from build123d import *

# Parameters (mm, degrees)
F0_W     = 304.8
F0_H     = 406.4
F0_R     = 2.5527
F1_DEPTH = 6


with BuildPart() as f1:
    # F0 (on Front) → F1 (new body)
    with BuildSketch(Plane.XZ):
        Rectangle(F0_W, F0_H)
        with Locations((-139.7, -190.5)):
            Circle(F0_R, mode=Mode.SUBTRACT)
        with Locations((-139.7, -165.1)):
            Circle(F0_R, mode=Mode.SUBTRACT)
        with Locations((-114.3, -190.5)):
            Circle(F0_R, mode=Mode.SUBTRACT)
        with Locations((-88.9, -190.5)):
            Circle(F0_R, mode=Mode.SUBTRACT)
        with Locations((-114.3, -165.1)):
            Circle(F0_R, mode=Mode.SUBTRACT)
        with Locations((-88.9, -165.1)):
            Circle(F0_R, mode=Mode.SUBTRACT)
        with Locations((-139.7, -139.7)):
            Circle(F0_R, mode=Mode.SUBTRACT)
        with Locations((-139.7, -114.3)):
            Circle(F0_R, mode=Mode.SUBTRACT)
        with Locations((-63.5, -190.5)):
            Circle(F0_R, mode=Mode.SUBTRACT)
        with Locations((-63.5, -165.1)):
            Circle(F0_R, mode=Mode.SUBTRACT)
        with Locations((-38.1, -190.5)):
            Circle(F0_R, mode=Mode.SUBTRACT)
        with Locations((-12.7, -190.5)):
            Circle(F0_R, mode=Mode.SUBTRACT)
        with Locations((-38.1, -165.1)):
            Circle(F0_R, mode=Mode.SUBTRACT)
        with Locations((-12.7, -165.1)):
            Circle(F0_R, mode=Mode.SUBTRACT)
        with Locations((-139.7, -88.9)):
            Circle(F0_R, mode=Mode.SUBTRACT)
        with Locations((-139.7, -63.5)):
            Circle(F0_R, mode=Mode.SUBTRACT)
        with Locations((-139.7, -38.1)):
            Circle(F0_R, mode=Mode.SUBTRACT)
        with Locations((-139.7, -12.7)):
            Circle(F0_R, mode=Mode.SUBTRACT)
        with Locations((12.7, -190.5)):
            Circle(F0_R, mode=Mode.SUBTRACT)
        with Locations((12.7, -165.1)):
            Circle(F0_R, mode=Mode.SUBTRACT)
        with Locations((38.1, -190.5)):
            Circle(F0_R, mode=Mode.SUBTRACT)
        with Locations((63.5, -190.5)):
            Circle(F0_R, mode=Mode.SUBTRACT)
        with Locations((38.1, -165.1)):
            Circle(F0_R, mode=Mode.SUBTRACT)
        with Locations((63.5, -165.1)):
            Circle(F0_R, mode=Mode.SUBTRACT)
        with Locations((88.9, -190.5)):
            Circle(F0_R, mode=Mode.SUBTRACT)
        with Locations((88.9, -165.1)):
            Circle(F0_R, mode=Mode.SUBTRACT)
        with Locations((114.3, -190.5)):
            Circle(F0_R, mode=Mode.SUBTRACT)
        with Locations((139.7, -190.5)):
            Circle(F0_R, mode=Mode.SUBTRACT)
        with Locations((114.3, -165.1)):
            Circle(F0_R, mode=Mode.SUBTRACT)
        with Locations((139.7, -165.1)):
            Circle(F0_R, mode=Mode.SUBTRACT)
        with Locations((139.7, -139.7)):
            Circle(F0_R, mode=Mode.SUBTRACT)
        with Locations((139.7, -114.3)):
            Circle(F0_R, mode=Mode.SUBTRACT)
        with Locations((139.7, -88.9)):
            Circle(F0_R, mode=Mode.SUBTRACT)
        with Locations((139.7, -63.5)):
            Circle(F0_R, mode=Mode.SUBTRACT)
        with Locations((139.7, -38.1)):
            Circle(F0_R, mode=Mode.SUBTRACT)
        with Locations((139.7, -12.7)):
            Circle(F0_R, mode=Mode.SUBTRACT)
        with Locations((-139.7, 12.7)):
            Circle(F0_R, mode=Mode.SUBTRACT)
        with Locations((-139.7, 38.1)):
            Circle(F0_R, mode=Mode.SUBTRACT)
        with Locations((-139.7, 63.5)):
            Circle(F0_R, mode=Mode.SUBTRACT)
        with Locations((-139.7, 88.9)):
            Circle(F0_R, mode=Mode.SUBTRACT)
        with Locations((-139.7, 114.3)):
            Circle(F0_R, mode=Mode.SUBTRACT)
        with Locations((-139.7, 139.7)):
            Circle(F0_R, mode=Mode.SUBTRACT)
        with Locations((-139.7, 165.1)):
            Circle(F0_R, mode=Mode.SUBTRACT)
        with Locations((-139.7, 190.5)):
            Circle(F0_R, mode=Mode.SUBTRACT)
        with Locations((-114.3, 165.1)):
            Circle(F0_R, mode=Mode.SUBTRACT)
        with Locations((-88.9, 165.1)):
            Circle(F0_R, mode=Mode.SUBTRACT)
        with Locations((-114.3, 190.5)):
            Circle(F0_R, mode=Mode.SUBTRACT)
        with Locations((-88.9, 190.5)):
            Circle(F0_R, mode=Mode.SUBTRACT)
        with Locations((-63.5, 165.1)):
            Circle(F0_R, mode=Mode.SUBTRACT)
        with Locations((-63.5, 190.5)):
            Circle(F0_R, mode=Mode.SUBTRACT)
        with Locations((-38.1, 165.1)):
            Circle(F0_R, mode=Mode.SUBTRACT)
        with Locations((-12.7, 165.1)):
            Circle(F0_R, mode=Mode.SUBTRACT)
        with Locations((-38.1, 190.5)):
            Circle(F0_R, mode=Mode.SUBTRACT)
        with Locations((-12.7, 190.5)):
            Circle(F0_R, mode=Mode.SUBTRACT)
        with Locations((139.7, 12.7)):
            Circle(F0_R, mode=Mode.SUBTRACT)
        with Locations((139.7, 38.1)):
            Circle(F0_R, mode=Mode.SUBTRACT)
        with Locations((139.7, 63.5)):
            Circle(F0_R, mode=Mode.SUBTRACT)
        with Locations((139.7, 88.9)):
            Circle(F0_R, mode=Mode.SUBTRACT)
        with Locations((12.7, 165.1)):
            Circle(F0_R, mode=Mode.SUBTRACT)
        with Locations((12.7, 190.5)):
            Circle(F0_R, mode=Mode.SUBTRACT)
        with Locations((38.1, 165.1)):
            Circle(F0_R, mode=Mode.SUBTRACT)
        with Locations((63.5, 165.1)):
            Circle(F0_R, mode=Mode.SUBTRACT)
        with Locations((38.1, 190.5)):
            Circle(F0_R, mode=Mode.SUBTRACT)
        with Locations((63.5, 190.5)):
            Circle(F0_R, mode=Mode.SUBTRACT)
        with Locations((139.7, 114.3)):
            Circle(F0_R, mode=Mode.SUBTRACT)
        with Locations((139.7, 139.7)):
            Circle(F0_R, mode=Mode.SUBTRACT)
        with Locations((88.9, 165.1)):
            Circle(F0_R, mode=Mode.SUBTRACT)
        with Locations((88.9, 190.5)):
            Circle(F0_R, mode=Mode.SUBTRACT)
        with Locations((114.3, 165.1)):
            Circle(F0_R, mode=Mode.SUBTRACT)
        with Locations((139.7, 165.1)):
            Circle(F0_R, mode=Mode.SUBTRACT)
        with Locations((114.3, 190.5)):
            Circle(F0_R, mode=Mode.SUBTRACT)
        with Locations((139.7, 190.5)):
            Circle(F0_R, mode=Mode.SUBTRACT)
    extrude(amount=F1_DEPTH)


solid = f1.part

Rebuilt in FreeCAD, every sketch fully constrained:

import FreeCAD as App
import Part
import Sketcher

V = App.Vector
Q = App.Units.Quantity


def add_polygon(sketch, points):
    """Adds a closed chain of lines whose ends are joined by coincident constraints."""
    first, n = sketch.GeometryCount, len(points)
    for a, b in zip(points, points[1:] + points[:1]):
        sketch.addGeometry(Part.LineSegment(App.Vector(*a, 0), App.Vector(*b, 0)), False)
    for i in range(n):
        sketch.addConstraint(Sketcher.Constraint("Coincident", first + i, 2, first + (i + 1) % n, 1))

doc = App.newDocument("Part")
body = doc.addObject("PartDesign::Body", "Body")

sketch1 = body.newObject("Sketcher::SketchObject", "Sketch")
sketch1.AttachmentSupport = (doc.getObject("XZ_Plane"), [""])
sketch1.MapMode = "FlatFace"
add_polygon(sketch1, [(-152.4, 203.2), (-152.4, -203.2), (152.4, -203.2), (152.4, 203.2)])
sketch1.addGeometry(Part.Circle(V(-139.7, -190.5, 0), V(0, 0, 1), 2.6), False)
sketch1.addGeometry(Part.Circle(V(-114.3, -190.5, 0), V(0, 0, 1), 2.6), False)
sketch1.addGeometry(Part.Circle(V(-139.7, -165.1, 0), V(0, 0, 1), 2.6), False)
sketch1.addGeometry(Part.Circle(V(-114.3, -165.1, 0), V(0, 0, 1), 2.6), False)
sketch1.addGeometry(Part.Circle(V(-88.9, -190.5, 0), V(0, 0, 1), 2.6), False)
sketch1.addGeometry(Part.Circle(V(-88.9, -165.1, 0), V(0, 0, 1), 2.6), False)
sketch1.addGeometry(Part.Circle(V(-139.7, -139.7, 0), V(0, 0, 1), 2.6), False)
sketch1.addGeometry(Part.Circle(V(-139.7, -114.3, 0), V(0, 0, 1), 2.6), False)
sketch1.addGeometry(Part.Circle(V(-63.5, -190.5, 0), V(0, 0, 1), 2.6), False)
sketch1.addGeometry(Part.Circle(V(-38.1, -190.5, 0), V(0, 0, 1), 2.6), False)
sketch1.addGeometry(Part.Circle(V(-63.5, -165.1, 0), V(0, 0, 1), 2.6), False)
sketch1.addGeometry(Part.Circle(V(-38.1, -165.1, 0), V(0, 0, 1), 2.6), False)
sketch1.addGeometry(Part.Circle(V(-12.7, -190.5, 0), V(0, 0, 1), 2.6), False)
sketch1.addGeometry(Part.Circle(V(-12.7, -165.1, 0), V(0, 0, 1), 2.6), False)
sketch1.addGeometry(Part.Circle(V(-139.7, -88.9, 0), V(0, 0, 1), 2.6), False)
sketch1.addGeometry(Part.Circle(V(-139.7, -63.5, 0), V(0, 0, 1), 2.6), False)
sketch1.addGeometry(Part.Circle(V(-139.7, -38.1, 0), V(0, 0, 1), 2.6), False)
sketch1.addGeometry(Part.Circle(V(-139.7, -12.7, 0), V(0, 0, 1), 2.6), False)
sketch1.addGeometry(Part.Circle(V(12.7, -190.5, 0), V(0, 0, 1), 2.6), False)
sketch1.addGeometry(Part.Circle(V(12.7, -165.1, 0), V(0, 0, 1), 2.6), False)
sketch1.addGeometry(Part.Circle(V(38.1, -190.5, 0), V(0, 0, 1), 2.6), False)
sketch1.addGeometry(Part.Circle(V(63.5, -190.5, 0), V(0, 0, 1), 2.6), False)
sketch1.addGeometry(Part.Circle(V(38.1, -165.1, 0), V(0, 0, 1), 2.6), False)
sketch1.addGeometry(Part.Circle(V(63.5, -165.1, 0), V(0, 0, 1), 2.6), False)
sketch1.addGeometry(Part.Circle(V(88.9, -190.5, 0), V(0, 0, 1), 2.6), False)
sketch1.addGeometry(Part.Circle(V(88.9, -165.1, 0), V(0, 0, 1), 2.6), False)
sketch1.addGeometry(Part.Circle(V(114.3, -190.5, 0), V(0, 0, 1), 2.6), False)
sketch1.addGeometry(Part.Circle(V(139.7, -190.5, 0), V(0, 0, 1), 2.6), False)
sketch1.addGeometry(Part.Circle(V(114.3, -165.1, 0), V(0, 0, 1), 2.6), False)
sketch1.addGeometry(Part.Circle(V(139.7, -165.1, 0), V(0, 0, 1), 2.6), False)
sketch1.addGeometry(Part.Circle(V(139.7, -139.7, 0), V(0, 0, 1), 2.6), False)
sketch1.addGeometry(Part.Circle(V(139.7, -114.3, 0), V(0, 0, 1), 2.6), False)
sketch1.addGeometry(Part.Circle(V(139.7, -88.9, 0), V(0, 0, 1), 2.6), False)
sketch1.addGeometry(Part.Circle(V(139.7, -63.5, 0), V(0, 0, 1), 2.6), False)
sketch1.addGeometry(Part.Circle(V(139.7, -38.1, 0), V(0, 0, 1), 2.6), False)
sketch1.addGeometry(Part.Circle(V(139.7, -12.7, 0), V(0, 0, 1), 2.6), False)
sketch1.addGeometry(Part.Circle(V(-139.7, 12.7, 0), V(0, 0, 1), 2.6), False)
sketch1.addGeometry(Part.Circle(V(-139.7, 38.1, 0), V(0, 0, 1), 2.6), False)
sketch1.addGeometry(Part.Circle(V(-139.7, 63.5, 0), V(0, 0, 1), 2.6), False)
sketch1.addGeometry(Part.Circle(V(-139.7, 88.9, 0), V(0, 0, 1), 2.6), False)
sketch1.addGeometry(Part.Circle(V(-139.7, 114.3, 0), V(0, 0, 1), 2.6), False)
sketch1.addGeometry(Part.Circle(V(-139.7, 139.7, 0), V(0, 0, 1), 2.6), False)
sketch1.addGeometry(Part.Circle(V(-139.7, 165.1, 0), V(0, 0, 1), 2.6), False)
sketch1.addGeometry(Part.Circle(V(-114.3, 165.1, 0), V(0, 0, 1), 2.6), False)
sketch1.addGeometry(Part.Circle(V(-139.7, 190.5, 0), V(0, 0, 1), 2.6), False)
sketch1.addGeometry(Part.Circle(V(-114.3, 190.5, 0), V(0, 0, 1), 2.6), False)
sketch1.addGeometry(Part.Circle(V(-88.9, 165.1, 0), V(0, 0, 1), 2.6), False)
sketch1.addGeometry(Part.Circle(V(-88.9, 190.5, 0), V(0, 0, 1), 2.6), False)
sketch1.addGeometry(Part.Circle(V(-63.5, 165.1, 0), V(0, 0, 1), 2.6), False)
sketch1.addGeometry(Part.Circle(V(-38.1, 165.1, 0), V(0, 0, 1), 2.6), False)
sketch1.addGeometry(Part.Circle(V(-63.5, 190.5, 0), V(0, 0, 1), 2.6), False)
sketch1.addGeometry(Part.Circle(V(-38.1, 190.5, 0), V(0, 0, 1), 2.6), False)
sketch1.addGeometry(Part.Circle(V(-12.7, 165.1, 0), V(0, 0, 1), 2.6), False)
sketch1.addGeometry(Part.Circle(V(-12.7, 190.5, 0), V(0, 0, 1), 2.6), False)
sketch1.addGeometry(Part.Circle(V(139.7, 12.7, 0), V(0, 0, 1), 2.6), False)
sketch1.addGeometry(Part.Circle(V(139.7, 38.1, 0), V(0, 0, 1), 2.6), False)
sketch1.addGeometry(Part.Circle(V(139.7, 63.5, 0), V(0, 0, 1), 2.6), False)
sketch1.addGeometry(Part.Circle(V(139.7, 88.9, 0), V(0, 0, 1), 2.6), False)
sketch1.addGeometry(Part.Circle(V(12.7, 165.1, 0), V(0, 0, 1), 2.6), False)
sketch1.addGeometry(Part.Circle(V(12.7, 190.5, 0), V(0, 0, 1), 2.6), False)
sketch1.addGeometry(Part.Circle(V(38.1, 165.1, 0), V(0, 0, 1), 2.6), False)
sketch1.addGeometry(Part.Circle(V(63.5, 165.1, 0), V(0, 0, 1), 2.6), False)
sketch1.addGeometry(Part.Circle(V(38.1, 190.5, 0), V(0, 0, 1), 2.6), False)
sketch1.addGeometry(Part.Circle(V(63.5, 190.5, 0), V(0, 0, 1), 2.6), False)
sketch1.addGeometry(Part.Circle(V(139.7, 114.3, 0), V(0, 0, 1), 2.6), False)
sketch1.addGeometry(Part.Circle(V(139.7, 139.7, 0), V(0, 0, 1), 2.6), False)
sketch1.addGeometry(Part.Circle(V(88.9, 165.1, 0), V(0, 0, 1), 2.6), False)
sketch1.addGeometry(Part.Circle(V(88.9, 190.5, 0), V(0, 0, 1), 2.6), False)
sketch1.addGeometry(Part.Circle(V(114.3, 165.1, 0), V(0, 0, 1), 2.6), False)
sketch1.addGeometry(Part.Circle(V(139.7, 165.1, 0), V(0, 0, 1), 2.6), False)
sketch1.addGeometry(Part.Circle(V(114.3, 190.5, 0), V(0, 0, 1), 2.6), False)
sketch1.addGeometry(Part.Circle(V(139.7, 190.5, 0), V(0, 0, 1), 2.6), False)
sketch1.addConstraint(Sketcher.Constraint("Vertical", 0))
sketch1.addConstraint(Sketcher.Constraint("Horizontal", 1))
sketch1.addConstraint(Sketcher.Constraint("Vertical", 2))
sketch1.addConstraint(Sketcher.Constraint("Horizontal", 3))
sketch1.addConstraint(Sketcher.Constraint("Equal", 4, 5))
sketch1.addConstraint(Sketcher.Constraint("Equal", 5, 6))
sketch1.addConstraint(Sketcher.Constraint("Equal", 6, 7))
sketch1.addConstraint(Sketcher.Constraint("Equal", 7, 8))
sketch1.addConstraint(Sketcher.Constraint("Equal", 8, 9))
sketch1.addConstraint(Sketcher.Constraint("Equal", 9, 10))
sketch1.addConstraint(Sketcher.Constraint("Equal", 10, 11))
sketch1.addConstraint(Sketcher.Constraint("Equal", 11, 12))
sketch1.addConstraint(Sketcher.Constraint("Equal", 12, 13))
sketch1.addConstraint(Sketcher.Constraint("Equal", 13, 14))
sketch1.addConstraint(Sketcher.Constraint("Equal", 14, 15))
sketch1.addConstraint(Sketcher.Constraint("Equal", 15, 16))
sketch1.addConstraint(Sketcher.Constraint("Equal", 16, 17))
sketch1.addConstraint(Sketcher.Constraint("Equal", 17, 18))
sketch1.addConstraint(Sketcher.Constraint("Equal", 18, 19))
sketch1.addConstraint(Sketcher.Constraint("Equal", 19, 20))
sketch1.addConstraint(Sketcher.Constraint("Equal", 20, 21))
sketch1.addConstraint(Sketcher.Constraint("Equal", 21, 22))
sketch1.addConstraint(Sketcher.Constraint("Equal", 22, 23))
sketch1.addConstraint(Sketcher.Constraint("Equal", 23, 24))
sketch1.addConstraint(Sketcher.Constraint("Equal", 24, 25))
sketch1.addConstraint(Sketcher.Constraint("Equal", 25, 26))
sketch1.addConstraint(Sketcher.Constraint("Equal", 26, 27))
sketch1.addConstraint(Sketcher.Constraint("Equal", 27, 28))
sketch1.addConstraint(Sketcher.Constraint("Equal", 28, 29))
sketch1.addConstraint(Sketcher.Constraint("Equal", 29, 30))
sketch1.addConstraint(Sketcher.Constraint("Equal", 30, 31))
sketch1.addConstraint(Sketcher.Constraint("Equal", 31, 32))
sketch1.addConstraint(Sketcher.Constraint("Equal", 32, 33))
sketch1.addConstraint(Sketcher.Constraint("Equal", 33, 34))
sketch1.addConstraint(Sketcher.Constraint("Equal", 34, 35))
sketch1.addConstraint(Sketcher.Constraint("Equal", 35, 36))
sketch1.addConstraint(Sketcher.Constraint("Equal", 36, 37))
sketch1.addConstraint(Sketcher.Constraint("Equal", 37, 38))
sketch1.addConstraint(Sketcher.Constraint("Equal", 38, 39))
sketch1.addConstraint(Sketcher.Constraint("Equal", 39, 40))
sketch1.addConstraint(Sketcher.Constraint("Equal", 40, 41))
sketch1.addConstraint(Sketcher.Constraint("Equal", 41, 42))
sketch1.addConstraint(Sketcher.Constraint("Equal", 42, 43))
sketch1.addConstraint(Sketcher.Constraint("Equal", 43, 44))
sketch1.addConstraint(Sketcher.Constraint("Equal", 44, 45))
sketch1.addConstraint(Sketcher.Constraint("Equal", 45, 46))
sketch1.addConstraint(Sketcher.Constraint("Equal", 46, 47))
sketch1.addConstraint(Sketcher.Constraint("Equal", 47, 48))
sketch1.addConstraint(Sketcher.Constraint("Equal", 48, 49))
sketch1.addConstraint(Sketcher.Constraint("Equal", 49, 50))
sketch1.addConstraint(Sketcher.Constraint("Equal", 50, 51))
sketch1.addConstraint(Sketcher.Constraint("Equal", 51, 52))
sketch1.addConstraint(Sketcher.Constraint("Equal", 52, 53))
sketch1.addConstraint(Sketcher.Constraint("Equal", 53, 54))
sketch1.addConstraint(Sketcher.Constraint("Equal", 54, 55))
sketch1.addConstraint(Sketcher.Constraint("Equal", 55, 56))
sketch1.addConstraint(Sketcher.Constraint("Equal", 56, 57))
sketch1.addConstraint(Sketcher.Constraint("Equal", 57, 58))
sketch1.addConstraint(Sketcher.Constraint("Equal", 58, 59))
sketch1.addConstraint(Sketcher.Constraint("Equal", 59, 60))
sketch1.addConstraint(Sketcher.Constraint("Equal", 60, 61))
sketch1.addConstraint(Sketcher.Constraint("Equal", 61, 62))
sketch1.addConstraint(Sketcher.Constraint("Equal", 62, 63))
sketch1.addConstraint(Sketcher.Constraint("Equal", 63, 64))
sketch1.addConstraint(Sketcher.Constraint("Equal", 64, 65))
sketch1.addConstraint(Sketcher.Constraint("Equal", 65, 66))
sketch1.addConstraint(Sketcher.Constraint("Equal", 66, 67))
sketch1.addConstraint(Sketcher.Constraint("Equal", 67, 68))
sketch1.addConstraint(Sketcher.Constraint("Equal", 68, 69))
sketch1.addConstraint(Sketcher.Constraint("Equal", 69, 70))
sketch1.addConstraint(Sketcher.Constraint("Equal", 70, 71))
sketch1.addConstraint(Sketcher.Constraint("Equal", 71, 72))
sketch1.addConstraint(Sketcher.Constraint("Equal", 72, 73))
sketch1.addConstraint(Sketcher.Constraint("Equal", 73, 74))
sketch1.addConstraint(Sketcher.Constraint("Equal", 74, 75))
sketch1.addConstraint(Sketcher.Constraint("Symmetric", 39, 3, 40, 3, -1, 1))
sketch1.addConstraint(Sketcher.Constraint("Symmetric", 38, 3, 41, 3, -1, 1))
sketch1.addConstraint(Sketcher.Constraint("Symmetric", 37, 3, 42, 3, -1, 1))
sketch1.addConstraint(Sketcher.Constraint("Symmetric", 36, 3, 43, 3, -1, 1))
sketch1.addConstraint(Sketcher.Constraint("Symmetric", 35, 3, 44, 3, -1, 1))
sketch1.addConstraint(Sketcher.Constraint("Symmetric", 34, 3, 45, 3, -1, 1))
sketch1.addConstraint(Sketcher.Constraint("Symmetric", 33, 3, 46, 3, -1, 1))
sketch1.addConstraint(Sketcher.Constraint("Symmetric", 32, 3, 47, 3, -1, 1))
sketch1.addConstraint(Sketcher.Constraint("Symmetric", 31, 3, 48, 3, -1, 1))
sketch1.addConstraint(Sketcher.Constraint("Symmetric", 30, 3, 49, 3, -1, 1))
sketch1.addConstraint(Sketcher.Constraint("Symmetric", 29, 3, 50, 3, -1, 1))
sketch1.addConstraint(Sketcher.Constraint("Symmetric", 28, 3, 51, 3, -1, 1))
sketch1.addConstraint(Sketcher.Constraint("Symmetric", 27, 3, 52, 3, -1, 1))
sketch1.addConstraint(Sketcher.Constraint("Symmetric", 26, 3, 53, 3, -1, 1))
sketch1.addConstraint(Sketcher.Constraint("Symmetric", 25, 3, 54, 3, -1, 1))
sketch1.addConstraint(Sketcher.Constraint("Symmetric", 24, 3, 55, 3, -1, 1))
sketch1.addConstraint(Sketcher.Constraint("Symmetric", 23, 3, 56, 3, -1, 1))
sketch1.addConstraint(Sketcher.Constraint("Symmetric", 22, 3, 57, 3, -1, 1))
sketch1.addConstraint(Sketcher.Constraint("Symmetric", 21, 3, 58, 3, -1, 1))
sketch1.addConstraint(Sketcher.Constraint("Symmetric", 20, 3, 59, 3, -1, 1))
sketch1.addConstraint(Sketcher.Constraint("Symmetric", 19, 3, 60, 3, -1, 1))
sketch1.addConstraint(Sketcher.Constraint("Symmetric", 18, 3, 61, 3, -1, 1))
sketch1.addConstraint(Sketcher.Constraint("Symmetric", 17, 3, 62, 3, -1, 1))
sketch1.addConstraint(Sketcher.Constraint("Symmetric", 16, 3, 63, 3, -1, 1))
sketch1.addConstraint(Sketcher.Constraint("Symmetric", 15, 3, 64, 3, -1, 1))
sketch1.addConstraint(Sketcher.Constraint("Symmetric", 14, 3, 65, 3, -1, 1))
sketch1.addConstraint(Sketcher.Constraint("Symmetric", 13, 3, 66, 3, -1, 1))
sketch1.addConstraint(Sketcher.Constraint("Symmetric", 12, 3, 67, 3, -1, 1))
sketch1.addConstraint(Sketcher.Constraint("Symmetric", 11, 3, 68, 3, -1, 1))
sketch1.addConstraint(Sketcher.Constraint("Symmetric", 10, 3, 69, 3, -1, 1))
sketch1.addConstraint(Sketcher.Constraint("Symmetric", 9, 3, 70, 3, -1, 1))
sketch1.addConstraint(Sketcher.Constraint("Symmetric", 8, 3, 71, 3, -1, 1))
sketch1.addConstraint(Sketcher.Constraint("Symmetric", 7, 3, 72, 3, -1, 1))
sketch1.addConstraint(Sketcher.Constraint("Symmetric", 6, 3, 73, 3, -1, 1))
sketch1.addConstraint(Sketcher.Constraint("Symmetric", 5, 3, 74, 3, -1, 1))
sketch1.addConstraint(Sketcher.Constraint("Symmetric", 4, 3, 75, 3, -1, 1))
sketch1.addConstraint(Sketcher.Constraint("Symmetric", 0, 2, 2, 2, -1, 1))
sketch1.addConstraint(Sketcher.Constraint("Symmetric", 16, 3, 22, 3, -2))
sketch1.addConstraint(Sketcher.Constraint("Symmetric", 17, 3, 23, 3, -2))
sketch1.addConstraint(Sketcher.Constraint("Symmetric", 13, 3, 24, 3, -2))
sketch1.addConstraint(Sketcher.Constraint("Symmetric", 12, 3, 25, 3, -2))
sketch1.addConstraint(Sketcher.Constraint("Symmetric", 15, 3, 26, 3, -2))
sketch1.addConstraint(Sketcher.Constraint("Symmetric", 14, 3, 27, 3, -2))
sketch1.addConstraint(Sketcher.Constraint("Symmetric", 8, 3, 28, 3, -2))
sketch1.addConstraint(Sketcher.Constraint("Symmetric", 9, 3, 29, 3, -2))
sketch1.addConstraint(Sketcher.Constraint("Symmetric", 5, 3, 30, 3, -2))
sketch1.addConstraint(Sketcher.Constraint("Symmetric", 4, 3, 31, 3, -2))
sketch1.addConstraint(Sketcher.Constraint("Symmetric", 7, 3, 32, 3, -2))
sketch1.addConstraint(Sketcher.Constraint("Symmetric", 6, 3, 33, 3, -2))
sketch1.addConstraint(Sketcher.Constraint("Symmetric", 10, 3, 34, 3, -2))
sketch1.addConstraint(Sketcher.Constraint("Symmetric", 11, 3, 35, 3, -2))
sketch1.addConstraint(Sketcher.Constraint("Symmetric", 18, 3, 36, 3, -2))
sketch1.addConstraint(Sketcher.Constraint("Symmetric", 19, 3, 37, 3, -2))
sketch1.addConstraint(Sketcher.Constraint("Symmetric", 20, 3, 38, 3, -2))
sketch1.addConstraint(Sketcher.Constraint("Symmetric", 21, 3, 39, 3, -2))
sketch1.addConstraint(Sketcher.Constraint("Horizontal", 4, 3, 5, 3))
sketch1.addConstraint(Sketcher.Constraint("Horizontal", 6, 3, 7, 3))
sketch1.addConstraint(Sketcher.Constraint("Horizontal", 5, 3, 8, 3))
sketch1.addConstraint(Sketcher.Constraint("Horizontal", 7, 3, 9, 3))
sketch1.addConstraint(Sketcher.Constraint("Horizontal", 8, 3, 12, 3))
sketch1.addConstraint(Sketcher.Constraint("Horizontal", 12, 3, 13, 3))
sketch1.addConstraint(Sketcher.Constraint("Horizontal", 9, 3, 14, 3))
sketch1.addConstraint(Sketcher.Constraint("Horizontal", 14, 3, 15, 3))
sketch1.addConstraint(Sketcher.Constraint("Horizontal", 13, 3, 16, 3))
sketch1.addConstraint(Sketcher.Constraint("Horizontal", 15, 3, 17, 3))
sketch1.addConstraint(Sketcher.Constraint("Vertical", 4, 3, 6, 3))
sketch1.addConstraint(Sketcher.Constraint("Vertical", 5, 3, 7, 3))
sketch1.addConstraint(Sketcher.Constraint("Vertical", 8, 3, 9, 3))
sketch1.addConstraint(Sketcher.Constraint("Vertical", 6, 3, 10, 3))
sketch1.addConstraint(Sketcher.Constraint("Vertical", 10, 3, 11, 3))
sketch1.addConstraint(Sketcher.Constraint("Vertical", 12, 3, 14, 3))
sketch1.addConstraint(Sketcher.Constraint("Vertical", 13, 3, 15, 3))
sketch1.addConstraint(Sketcher.Constraint("Vertical", 16, 3, 17, 3))
sketch1.addConstraint(Sketcher.Constraint("Vertical", 11, 3, 18, 3))
sketch1.addConstraint(Sketcher.Constraint("Vertical", 18, 3, 19, 3))
sketch1.addConstraint(Sketcher.Constraint("Vertical", 19, 3, 20, 3))
sketch1.addConstraint(Sketcher.Constraint("Vertical", 20, 3, 21, 3))
sketch1.addConstraint(Sketcher.Constraint("DistanceX", 1, 1, 1, 2, Q("12 in")))
sketch1.addConstraint(Sketcher.Constraint("DistanceY", 0, 2, 0, 1, Q("16 in")))
sketch1.addConstraint(Sketcher.Constraint("Diameter", 4, Q("0.201 in")))
sketch1.addConstraint(Sketcher.Constraint("DistanceX", 4, 3, -1, 1, Q("5.5 in")))
sketch1.addConstraint(Sketcher.Constraint("DistanceY", 4, 3, -1, 1, Q("7.5 in")))
sketch1.addConstraint(Sketcher.Constraint("DistanceX", 5, 3, -1, 1, Q("4.5 in")))
sketch1.addConstraint(Sketcher.Constraint("DistanceY", 6, 3, -1, 1, Q("6.5 in")))
sketch1.addConstraint(Sketcher.Constraint("DistanceX", 8, 3, -1, 1, Q("3.5 in")))
sketch1.addConstraint(Sketcher.Constraint("DistanceY", 10, 3, -1, 1, Q("5.5 in")))
sketch1.addConstraint(Sketcher.Constraint("DistanceY", 11, 3, -1, 1, Q("4.5 in")))
sketch1.addConstraint(Sketcher.Constraint("DistanceX", 12, 3, -1, 1, Q("2.5 in")))
sketch1.addConstraint(Sketcher.Constraint("DistanceX", 13, 3, -1, 1, Q("1.5 in")))
sketch1.addConstraint(Sketcher.Constraint("DistanceX", 16, 3, -1, 1, Q("0.5 in")))
sketch1.addConstraint(Sketcher.Constraint("DistanceY", 18, 3, -1, 1, Q("3.5 in")))
sketch1.addConstraint(Sketcher.Constraint("DistanceY", 19, 3, -1, 1, Q("2.5 in")))
sketch1.addConstraint(Sketcher.Constraint("DistanceY", 20, 3, -1, 1, Q("1.5 in")))
sketch1.addConstraint(Sketcher.Constraint("DistanceY", 21, 3, -1, 1, Q("0.5 in")))
pad1 = body.newObject("PartDesign::Pad", "Pad")
pad1.Profile = sketch1
pad1.Length = 6

doc.recompute()
